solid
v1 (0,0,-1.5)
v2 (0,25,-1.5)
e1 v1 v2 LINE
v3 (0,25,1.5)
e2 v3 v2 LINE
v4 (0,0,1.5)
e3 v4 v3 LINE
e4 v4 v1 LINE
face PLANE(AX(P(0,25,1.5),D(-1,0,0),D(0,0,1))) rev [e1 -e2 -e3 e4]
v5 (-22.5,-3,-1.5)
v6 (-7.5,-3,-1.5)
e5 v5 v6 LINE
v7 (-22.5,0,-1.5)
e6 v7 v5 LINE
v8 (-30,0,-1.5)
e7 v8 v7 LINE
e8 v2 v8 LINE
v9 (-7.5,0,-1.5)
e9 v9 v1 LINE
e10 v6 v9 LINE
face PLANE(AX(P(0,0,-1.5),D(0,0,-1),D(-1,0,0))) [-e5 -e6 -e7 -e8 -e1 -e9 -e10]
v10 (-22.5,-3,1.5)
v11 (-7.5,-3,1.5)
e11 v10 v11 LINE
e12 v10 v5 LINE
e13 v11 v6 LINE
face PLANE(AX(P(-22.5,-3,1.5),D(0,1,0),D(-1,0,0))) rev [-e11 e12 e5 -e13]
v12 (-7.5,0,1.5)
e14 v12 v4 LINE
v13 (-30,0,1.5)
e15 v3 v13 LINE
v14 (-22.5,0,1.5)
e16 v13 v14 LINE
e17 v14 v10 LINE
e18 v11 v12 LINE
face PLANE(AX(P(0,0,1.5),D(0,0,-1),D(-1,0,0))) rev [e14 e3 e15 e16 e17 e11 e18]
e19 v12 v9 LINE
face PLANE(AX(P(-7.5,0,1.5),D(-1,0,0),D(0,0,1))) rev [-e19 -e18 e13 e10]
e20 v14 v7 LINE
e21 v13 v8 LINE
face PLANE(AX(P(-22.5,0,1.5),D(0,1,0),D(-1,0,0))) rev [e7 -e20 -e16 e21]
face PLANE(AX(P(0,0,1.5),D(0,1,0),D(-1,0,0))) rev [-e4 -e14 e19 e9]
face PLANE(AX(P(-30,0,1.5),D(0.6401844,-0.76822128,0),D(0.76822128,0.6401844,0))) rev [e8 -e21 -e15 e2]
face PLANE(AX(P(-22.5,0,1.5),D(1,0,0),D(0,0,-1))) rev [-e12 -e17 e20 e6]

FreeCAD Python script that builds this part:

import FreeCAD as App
import Part
import Sketcher
from FreeCAD import Vector


def add_polygon(sketch, points):
    """Adds a closed chain of lines whose ends are joined by coincident constraints."""
    first, n = sketch.GeometryCount, len(points)
    for a, b in zip(points, points[1:] + points[:1]):
        sketch.addGeometry(Part.LineSegment(App.Vector(*a, 0), App.Vector(*b, 0)), False)
    for i in range(n):
        sketch.addConstraint(Sketcher.Constraint("Coincident", first + i, 2, first + (i + 1) % n, 1))

doc = App.newDocument("Part")
params = doc.addObject("Spreadsheet::Sheet", "Params")
for row, (alias, value) in enumerate([
    ("sketch1_width", "15 mm"),
    ("sketch1_height", "25 mm"),
    ("sketch1_height2", "3 mm"),
    ("sketch1_width2", "7.5 mm"),
    ("pad1_length", "3 mm"),
], start=1):
    params.set(f"A{row}", alias)
    params.set(f"B{row}", "=" + value)
    params.setAlias(f"B{row}", alias)

body = doc.addObject("PartDesign::Body", "Body")

# Sketch on XY plane
sketch1 = body.newObject("Sketcher::SketchObject", "Sketch")
sketch1.AttachmentSupport = (doc.getObject("XY_Plane"), [""])
sketch1.MapMode = "FlatFace"
add_polygon(sketch1, [(-7.5, 0), (0, 0), (0, 25), (-30, 0), (-22.5, 0), (-22.5, -3), (-7.5, -3)])  # lines 0-6
sketch1.addConstraint([
    Sketcher.Constraint("Horizontal", 0),
    Sketcher.Constraint("Vertical", 1),
    Sketcher.Constraint("Horizontal", 3),
    Sketcher.Constraint("Vertical", 4),
    Sketcher.Constraint("Horizontal", 5),
    Sketcher.Constraint("Vertical", 6),
    Sketcher.Constraint("Coincident", 0, 2, -1, 1),
    Sketcher.Constraint("PointOnObject", 2, 2, -1),
    Sketcher.Constraint("Equal", 0, 3),
    Sketcher.Constraint("DistanceX", 5, 1, 5, 2, 15.0),
    Sketcher.Constraint("DistanceY", 1, 1, 1, 2, 25.0),
    Sketcher.Constraint("DistanceY", 4, 2, 4, 1, 3.0),
    Sketcher.Constraint("DistanceX", 0, 1, 0, 2, 7.5),
])
sketch1.setExpression("Constraints[16]", "Params.sketch1_width")
sketch1.setExpression("Constraints[17]", "Params.sketch1_height")
sketch1.setExpression("Constraints[18]", "Params.sketch1_height2")
sketch1.setExpression("Constraints[19]", "Params.sketch1_width2")
pad1 = body.newObject("PartDesign::Pad", "Pad")
pad1.Profile = sketch1
pad1.setExpression("Length", "Params.pad1_length")
pad1.Midplane = True

doc.recompute()
